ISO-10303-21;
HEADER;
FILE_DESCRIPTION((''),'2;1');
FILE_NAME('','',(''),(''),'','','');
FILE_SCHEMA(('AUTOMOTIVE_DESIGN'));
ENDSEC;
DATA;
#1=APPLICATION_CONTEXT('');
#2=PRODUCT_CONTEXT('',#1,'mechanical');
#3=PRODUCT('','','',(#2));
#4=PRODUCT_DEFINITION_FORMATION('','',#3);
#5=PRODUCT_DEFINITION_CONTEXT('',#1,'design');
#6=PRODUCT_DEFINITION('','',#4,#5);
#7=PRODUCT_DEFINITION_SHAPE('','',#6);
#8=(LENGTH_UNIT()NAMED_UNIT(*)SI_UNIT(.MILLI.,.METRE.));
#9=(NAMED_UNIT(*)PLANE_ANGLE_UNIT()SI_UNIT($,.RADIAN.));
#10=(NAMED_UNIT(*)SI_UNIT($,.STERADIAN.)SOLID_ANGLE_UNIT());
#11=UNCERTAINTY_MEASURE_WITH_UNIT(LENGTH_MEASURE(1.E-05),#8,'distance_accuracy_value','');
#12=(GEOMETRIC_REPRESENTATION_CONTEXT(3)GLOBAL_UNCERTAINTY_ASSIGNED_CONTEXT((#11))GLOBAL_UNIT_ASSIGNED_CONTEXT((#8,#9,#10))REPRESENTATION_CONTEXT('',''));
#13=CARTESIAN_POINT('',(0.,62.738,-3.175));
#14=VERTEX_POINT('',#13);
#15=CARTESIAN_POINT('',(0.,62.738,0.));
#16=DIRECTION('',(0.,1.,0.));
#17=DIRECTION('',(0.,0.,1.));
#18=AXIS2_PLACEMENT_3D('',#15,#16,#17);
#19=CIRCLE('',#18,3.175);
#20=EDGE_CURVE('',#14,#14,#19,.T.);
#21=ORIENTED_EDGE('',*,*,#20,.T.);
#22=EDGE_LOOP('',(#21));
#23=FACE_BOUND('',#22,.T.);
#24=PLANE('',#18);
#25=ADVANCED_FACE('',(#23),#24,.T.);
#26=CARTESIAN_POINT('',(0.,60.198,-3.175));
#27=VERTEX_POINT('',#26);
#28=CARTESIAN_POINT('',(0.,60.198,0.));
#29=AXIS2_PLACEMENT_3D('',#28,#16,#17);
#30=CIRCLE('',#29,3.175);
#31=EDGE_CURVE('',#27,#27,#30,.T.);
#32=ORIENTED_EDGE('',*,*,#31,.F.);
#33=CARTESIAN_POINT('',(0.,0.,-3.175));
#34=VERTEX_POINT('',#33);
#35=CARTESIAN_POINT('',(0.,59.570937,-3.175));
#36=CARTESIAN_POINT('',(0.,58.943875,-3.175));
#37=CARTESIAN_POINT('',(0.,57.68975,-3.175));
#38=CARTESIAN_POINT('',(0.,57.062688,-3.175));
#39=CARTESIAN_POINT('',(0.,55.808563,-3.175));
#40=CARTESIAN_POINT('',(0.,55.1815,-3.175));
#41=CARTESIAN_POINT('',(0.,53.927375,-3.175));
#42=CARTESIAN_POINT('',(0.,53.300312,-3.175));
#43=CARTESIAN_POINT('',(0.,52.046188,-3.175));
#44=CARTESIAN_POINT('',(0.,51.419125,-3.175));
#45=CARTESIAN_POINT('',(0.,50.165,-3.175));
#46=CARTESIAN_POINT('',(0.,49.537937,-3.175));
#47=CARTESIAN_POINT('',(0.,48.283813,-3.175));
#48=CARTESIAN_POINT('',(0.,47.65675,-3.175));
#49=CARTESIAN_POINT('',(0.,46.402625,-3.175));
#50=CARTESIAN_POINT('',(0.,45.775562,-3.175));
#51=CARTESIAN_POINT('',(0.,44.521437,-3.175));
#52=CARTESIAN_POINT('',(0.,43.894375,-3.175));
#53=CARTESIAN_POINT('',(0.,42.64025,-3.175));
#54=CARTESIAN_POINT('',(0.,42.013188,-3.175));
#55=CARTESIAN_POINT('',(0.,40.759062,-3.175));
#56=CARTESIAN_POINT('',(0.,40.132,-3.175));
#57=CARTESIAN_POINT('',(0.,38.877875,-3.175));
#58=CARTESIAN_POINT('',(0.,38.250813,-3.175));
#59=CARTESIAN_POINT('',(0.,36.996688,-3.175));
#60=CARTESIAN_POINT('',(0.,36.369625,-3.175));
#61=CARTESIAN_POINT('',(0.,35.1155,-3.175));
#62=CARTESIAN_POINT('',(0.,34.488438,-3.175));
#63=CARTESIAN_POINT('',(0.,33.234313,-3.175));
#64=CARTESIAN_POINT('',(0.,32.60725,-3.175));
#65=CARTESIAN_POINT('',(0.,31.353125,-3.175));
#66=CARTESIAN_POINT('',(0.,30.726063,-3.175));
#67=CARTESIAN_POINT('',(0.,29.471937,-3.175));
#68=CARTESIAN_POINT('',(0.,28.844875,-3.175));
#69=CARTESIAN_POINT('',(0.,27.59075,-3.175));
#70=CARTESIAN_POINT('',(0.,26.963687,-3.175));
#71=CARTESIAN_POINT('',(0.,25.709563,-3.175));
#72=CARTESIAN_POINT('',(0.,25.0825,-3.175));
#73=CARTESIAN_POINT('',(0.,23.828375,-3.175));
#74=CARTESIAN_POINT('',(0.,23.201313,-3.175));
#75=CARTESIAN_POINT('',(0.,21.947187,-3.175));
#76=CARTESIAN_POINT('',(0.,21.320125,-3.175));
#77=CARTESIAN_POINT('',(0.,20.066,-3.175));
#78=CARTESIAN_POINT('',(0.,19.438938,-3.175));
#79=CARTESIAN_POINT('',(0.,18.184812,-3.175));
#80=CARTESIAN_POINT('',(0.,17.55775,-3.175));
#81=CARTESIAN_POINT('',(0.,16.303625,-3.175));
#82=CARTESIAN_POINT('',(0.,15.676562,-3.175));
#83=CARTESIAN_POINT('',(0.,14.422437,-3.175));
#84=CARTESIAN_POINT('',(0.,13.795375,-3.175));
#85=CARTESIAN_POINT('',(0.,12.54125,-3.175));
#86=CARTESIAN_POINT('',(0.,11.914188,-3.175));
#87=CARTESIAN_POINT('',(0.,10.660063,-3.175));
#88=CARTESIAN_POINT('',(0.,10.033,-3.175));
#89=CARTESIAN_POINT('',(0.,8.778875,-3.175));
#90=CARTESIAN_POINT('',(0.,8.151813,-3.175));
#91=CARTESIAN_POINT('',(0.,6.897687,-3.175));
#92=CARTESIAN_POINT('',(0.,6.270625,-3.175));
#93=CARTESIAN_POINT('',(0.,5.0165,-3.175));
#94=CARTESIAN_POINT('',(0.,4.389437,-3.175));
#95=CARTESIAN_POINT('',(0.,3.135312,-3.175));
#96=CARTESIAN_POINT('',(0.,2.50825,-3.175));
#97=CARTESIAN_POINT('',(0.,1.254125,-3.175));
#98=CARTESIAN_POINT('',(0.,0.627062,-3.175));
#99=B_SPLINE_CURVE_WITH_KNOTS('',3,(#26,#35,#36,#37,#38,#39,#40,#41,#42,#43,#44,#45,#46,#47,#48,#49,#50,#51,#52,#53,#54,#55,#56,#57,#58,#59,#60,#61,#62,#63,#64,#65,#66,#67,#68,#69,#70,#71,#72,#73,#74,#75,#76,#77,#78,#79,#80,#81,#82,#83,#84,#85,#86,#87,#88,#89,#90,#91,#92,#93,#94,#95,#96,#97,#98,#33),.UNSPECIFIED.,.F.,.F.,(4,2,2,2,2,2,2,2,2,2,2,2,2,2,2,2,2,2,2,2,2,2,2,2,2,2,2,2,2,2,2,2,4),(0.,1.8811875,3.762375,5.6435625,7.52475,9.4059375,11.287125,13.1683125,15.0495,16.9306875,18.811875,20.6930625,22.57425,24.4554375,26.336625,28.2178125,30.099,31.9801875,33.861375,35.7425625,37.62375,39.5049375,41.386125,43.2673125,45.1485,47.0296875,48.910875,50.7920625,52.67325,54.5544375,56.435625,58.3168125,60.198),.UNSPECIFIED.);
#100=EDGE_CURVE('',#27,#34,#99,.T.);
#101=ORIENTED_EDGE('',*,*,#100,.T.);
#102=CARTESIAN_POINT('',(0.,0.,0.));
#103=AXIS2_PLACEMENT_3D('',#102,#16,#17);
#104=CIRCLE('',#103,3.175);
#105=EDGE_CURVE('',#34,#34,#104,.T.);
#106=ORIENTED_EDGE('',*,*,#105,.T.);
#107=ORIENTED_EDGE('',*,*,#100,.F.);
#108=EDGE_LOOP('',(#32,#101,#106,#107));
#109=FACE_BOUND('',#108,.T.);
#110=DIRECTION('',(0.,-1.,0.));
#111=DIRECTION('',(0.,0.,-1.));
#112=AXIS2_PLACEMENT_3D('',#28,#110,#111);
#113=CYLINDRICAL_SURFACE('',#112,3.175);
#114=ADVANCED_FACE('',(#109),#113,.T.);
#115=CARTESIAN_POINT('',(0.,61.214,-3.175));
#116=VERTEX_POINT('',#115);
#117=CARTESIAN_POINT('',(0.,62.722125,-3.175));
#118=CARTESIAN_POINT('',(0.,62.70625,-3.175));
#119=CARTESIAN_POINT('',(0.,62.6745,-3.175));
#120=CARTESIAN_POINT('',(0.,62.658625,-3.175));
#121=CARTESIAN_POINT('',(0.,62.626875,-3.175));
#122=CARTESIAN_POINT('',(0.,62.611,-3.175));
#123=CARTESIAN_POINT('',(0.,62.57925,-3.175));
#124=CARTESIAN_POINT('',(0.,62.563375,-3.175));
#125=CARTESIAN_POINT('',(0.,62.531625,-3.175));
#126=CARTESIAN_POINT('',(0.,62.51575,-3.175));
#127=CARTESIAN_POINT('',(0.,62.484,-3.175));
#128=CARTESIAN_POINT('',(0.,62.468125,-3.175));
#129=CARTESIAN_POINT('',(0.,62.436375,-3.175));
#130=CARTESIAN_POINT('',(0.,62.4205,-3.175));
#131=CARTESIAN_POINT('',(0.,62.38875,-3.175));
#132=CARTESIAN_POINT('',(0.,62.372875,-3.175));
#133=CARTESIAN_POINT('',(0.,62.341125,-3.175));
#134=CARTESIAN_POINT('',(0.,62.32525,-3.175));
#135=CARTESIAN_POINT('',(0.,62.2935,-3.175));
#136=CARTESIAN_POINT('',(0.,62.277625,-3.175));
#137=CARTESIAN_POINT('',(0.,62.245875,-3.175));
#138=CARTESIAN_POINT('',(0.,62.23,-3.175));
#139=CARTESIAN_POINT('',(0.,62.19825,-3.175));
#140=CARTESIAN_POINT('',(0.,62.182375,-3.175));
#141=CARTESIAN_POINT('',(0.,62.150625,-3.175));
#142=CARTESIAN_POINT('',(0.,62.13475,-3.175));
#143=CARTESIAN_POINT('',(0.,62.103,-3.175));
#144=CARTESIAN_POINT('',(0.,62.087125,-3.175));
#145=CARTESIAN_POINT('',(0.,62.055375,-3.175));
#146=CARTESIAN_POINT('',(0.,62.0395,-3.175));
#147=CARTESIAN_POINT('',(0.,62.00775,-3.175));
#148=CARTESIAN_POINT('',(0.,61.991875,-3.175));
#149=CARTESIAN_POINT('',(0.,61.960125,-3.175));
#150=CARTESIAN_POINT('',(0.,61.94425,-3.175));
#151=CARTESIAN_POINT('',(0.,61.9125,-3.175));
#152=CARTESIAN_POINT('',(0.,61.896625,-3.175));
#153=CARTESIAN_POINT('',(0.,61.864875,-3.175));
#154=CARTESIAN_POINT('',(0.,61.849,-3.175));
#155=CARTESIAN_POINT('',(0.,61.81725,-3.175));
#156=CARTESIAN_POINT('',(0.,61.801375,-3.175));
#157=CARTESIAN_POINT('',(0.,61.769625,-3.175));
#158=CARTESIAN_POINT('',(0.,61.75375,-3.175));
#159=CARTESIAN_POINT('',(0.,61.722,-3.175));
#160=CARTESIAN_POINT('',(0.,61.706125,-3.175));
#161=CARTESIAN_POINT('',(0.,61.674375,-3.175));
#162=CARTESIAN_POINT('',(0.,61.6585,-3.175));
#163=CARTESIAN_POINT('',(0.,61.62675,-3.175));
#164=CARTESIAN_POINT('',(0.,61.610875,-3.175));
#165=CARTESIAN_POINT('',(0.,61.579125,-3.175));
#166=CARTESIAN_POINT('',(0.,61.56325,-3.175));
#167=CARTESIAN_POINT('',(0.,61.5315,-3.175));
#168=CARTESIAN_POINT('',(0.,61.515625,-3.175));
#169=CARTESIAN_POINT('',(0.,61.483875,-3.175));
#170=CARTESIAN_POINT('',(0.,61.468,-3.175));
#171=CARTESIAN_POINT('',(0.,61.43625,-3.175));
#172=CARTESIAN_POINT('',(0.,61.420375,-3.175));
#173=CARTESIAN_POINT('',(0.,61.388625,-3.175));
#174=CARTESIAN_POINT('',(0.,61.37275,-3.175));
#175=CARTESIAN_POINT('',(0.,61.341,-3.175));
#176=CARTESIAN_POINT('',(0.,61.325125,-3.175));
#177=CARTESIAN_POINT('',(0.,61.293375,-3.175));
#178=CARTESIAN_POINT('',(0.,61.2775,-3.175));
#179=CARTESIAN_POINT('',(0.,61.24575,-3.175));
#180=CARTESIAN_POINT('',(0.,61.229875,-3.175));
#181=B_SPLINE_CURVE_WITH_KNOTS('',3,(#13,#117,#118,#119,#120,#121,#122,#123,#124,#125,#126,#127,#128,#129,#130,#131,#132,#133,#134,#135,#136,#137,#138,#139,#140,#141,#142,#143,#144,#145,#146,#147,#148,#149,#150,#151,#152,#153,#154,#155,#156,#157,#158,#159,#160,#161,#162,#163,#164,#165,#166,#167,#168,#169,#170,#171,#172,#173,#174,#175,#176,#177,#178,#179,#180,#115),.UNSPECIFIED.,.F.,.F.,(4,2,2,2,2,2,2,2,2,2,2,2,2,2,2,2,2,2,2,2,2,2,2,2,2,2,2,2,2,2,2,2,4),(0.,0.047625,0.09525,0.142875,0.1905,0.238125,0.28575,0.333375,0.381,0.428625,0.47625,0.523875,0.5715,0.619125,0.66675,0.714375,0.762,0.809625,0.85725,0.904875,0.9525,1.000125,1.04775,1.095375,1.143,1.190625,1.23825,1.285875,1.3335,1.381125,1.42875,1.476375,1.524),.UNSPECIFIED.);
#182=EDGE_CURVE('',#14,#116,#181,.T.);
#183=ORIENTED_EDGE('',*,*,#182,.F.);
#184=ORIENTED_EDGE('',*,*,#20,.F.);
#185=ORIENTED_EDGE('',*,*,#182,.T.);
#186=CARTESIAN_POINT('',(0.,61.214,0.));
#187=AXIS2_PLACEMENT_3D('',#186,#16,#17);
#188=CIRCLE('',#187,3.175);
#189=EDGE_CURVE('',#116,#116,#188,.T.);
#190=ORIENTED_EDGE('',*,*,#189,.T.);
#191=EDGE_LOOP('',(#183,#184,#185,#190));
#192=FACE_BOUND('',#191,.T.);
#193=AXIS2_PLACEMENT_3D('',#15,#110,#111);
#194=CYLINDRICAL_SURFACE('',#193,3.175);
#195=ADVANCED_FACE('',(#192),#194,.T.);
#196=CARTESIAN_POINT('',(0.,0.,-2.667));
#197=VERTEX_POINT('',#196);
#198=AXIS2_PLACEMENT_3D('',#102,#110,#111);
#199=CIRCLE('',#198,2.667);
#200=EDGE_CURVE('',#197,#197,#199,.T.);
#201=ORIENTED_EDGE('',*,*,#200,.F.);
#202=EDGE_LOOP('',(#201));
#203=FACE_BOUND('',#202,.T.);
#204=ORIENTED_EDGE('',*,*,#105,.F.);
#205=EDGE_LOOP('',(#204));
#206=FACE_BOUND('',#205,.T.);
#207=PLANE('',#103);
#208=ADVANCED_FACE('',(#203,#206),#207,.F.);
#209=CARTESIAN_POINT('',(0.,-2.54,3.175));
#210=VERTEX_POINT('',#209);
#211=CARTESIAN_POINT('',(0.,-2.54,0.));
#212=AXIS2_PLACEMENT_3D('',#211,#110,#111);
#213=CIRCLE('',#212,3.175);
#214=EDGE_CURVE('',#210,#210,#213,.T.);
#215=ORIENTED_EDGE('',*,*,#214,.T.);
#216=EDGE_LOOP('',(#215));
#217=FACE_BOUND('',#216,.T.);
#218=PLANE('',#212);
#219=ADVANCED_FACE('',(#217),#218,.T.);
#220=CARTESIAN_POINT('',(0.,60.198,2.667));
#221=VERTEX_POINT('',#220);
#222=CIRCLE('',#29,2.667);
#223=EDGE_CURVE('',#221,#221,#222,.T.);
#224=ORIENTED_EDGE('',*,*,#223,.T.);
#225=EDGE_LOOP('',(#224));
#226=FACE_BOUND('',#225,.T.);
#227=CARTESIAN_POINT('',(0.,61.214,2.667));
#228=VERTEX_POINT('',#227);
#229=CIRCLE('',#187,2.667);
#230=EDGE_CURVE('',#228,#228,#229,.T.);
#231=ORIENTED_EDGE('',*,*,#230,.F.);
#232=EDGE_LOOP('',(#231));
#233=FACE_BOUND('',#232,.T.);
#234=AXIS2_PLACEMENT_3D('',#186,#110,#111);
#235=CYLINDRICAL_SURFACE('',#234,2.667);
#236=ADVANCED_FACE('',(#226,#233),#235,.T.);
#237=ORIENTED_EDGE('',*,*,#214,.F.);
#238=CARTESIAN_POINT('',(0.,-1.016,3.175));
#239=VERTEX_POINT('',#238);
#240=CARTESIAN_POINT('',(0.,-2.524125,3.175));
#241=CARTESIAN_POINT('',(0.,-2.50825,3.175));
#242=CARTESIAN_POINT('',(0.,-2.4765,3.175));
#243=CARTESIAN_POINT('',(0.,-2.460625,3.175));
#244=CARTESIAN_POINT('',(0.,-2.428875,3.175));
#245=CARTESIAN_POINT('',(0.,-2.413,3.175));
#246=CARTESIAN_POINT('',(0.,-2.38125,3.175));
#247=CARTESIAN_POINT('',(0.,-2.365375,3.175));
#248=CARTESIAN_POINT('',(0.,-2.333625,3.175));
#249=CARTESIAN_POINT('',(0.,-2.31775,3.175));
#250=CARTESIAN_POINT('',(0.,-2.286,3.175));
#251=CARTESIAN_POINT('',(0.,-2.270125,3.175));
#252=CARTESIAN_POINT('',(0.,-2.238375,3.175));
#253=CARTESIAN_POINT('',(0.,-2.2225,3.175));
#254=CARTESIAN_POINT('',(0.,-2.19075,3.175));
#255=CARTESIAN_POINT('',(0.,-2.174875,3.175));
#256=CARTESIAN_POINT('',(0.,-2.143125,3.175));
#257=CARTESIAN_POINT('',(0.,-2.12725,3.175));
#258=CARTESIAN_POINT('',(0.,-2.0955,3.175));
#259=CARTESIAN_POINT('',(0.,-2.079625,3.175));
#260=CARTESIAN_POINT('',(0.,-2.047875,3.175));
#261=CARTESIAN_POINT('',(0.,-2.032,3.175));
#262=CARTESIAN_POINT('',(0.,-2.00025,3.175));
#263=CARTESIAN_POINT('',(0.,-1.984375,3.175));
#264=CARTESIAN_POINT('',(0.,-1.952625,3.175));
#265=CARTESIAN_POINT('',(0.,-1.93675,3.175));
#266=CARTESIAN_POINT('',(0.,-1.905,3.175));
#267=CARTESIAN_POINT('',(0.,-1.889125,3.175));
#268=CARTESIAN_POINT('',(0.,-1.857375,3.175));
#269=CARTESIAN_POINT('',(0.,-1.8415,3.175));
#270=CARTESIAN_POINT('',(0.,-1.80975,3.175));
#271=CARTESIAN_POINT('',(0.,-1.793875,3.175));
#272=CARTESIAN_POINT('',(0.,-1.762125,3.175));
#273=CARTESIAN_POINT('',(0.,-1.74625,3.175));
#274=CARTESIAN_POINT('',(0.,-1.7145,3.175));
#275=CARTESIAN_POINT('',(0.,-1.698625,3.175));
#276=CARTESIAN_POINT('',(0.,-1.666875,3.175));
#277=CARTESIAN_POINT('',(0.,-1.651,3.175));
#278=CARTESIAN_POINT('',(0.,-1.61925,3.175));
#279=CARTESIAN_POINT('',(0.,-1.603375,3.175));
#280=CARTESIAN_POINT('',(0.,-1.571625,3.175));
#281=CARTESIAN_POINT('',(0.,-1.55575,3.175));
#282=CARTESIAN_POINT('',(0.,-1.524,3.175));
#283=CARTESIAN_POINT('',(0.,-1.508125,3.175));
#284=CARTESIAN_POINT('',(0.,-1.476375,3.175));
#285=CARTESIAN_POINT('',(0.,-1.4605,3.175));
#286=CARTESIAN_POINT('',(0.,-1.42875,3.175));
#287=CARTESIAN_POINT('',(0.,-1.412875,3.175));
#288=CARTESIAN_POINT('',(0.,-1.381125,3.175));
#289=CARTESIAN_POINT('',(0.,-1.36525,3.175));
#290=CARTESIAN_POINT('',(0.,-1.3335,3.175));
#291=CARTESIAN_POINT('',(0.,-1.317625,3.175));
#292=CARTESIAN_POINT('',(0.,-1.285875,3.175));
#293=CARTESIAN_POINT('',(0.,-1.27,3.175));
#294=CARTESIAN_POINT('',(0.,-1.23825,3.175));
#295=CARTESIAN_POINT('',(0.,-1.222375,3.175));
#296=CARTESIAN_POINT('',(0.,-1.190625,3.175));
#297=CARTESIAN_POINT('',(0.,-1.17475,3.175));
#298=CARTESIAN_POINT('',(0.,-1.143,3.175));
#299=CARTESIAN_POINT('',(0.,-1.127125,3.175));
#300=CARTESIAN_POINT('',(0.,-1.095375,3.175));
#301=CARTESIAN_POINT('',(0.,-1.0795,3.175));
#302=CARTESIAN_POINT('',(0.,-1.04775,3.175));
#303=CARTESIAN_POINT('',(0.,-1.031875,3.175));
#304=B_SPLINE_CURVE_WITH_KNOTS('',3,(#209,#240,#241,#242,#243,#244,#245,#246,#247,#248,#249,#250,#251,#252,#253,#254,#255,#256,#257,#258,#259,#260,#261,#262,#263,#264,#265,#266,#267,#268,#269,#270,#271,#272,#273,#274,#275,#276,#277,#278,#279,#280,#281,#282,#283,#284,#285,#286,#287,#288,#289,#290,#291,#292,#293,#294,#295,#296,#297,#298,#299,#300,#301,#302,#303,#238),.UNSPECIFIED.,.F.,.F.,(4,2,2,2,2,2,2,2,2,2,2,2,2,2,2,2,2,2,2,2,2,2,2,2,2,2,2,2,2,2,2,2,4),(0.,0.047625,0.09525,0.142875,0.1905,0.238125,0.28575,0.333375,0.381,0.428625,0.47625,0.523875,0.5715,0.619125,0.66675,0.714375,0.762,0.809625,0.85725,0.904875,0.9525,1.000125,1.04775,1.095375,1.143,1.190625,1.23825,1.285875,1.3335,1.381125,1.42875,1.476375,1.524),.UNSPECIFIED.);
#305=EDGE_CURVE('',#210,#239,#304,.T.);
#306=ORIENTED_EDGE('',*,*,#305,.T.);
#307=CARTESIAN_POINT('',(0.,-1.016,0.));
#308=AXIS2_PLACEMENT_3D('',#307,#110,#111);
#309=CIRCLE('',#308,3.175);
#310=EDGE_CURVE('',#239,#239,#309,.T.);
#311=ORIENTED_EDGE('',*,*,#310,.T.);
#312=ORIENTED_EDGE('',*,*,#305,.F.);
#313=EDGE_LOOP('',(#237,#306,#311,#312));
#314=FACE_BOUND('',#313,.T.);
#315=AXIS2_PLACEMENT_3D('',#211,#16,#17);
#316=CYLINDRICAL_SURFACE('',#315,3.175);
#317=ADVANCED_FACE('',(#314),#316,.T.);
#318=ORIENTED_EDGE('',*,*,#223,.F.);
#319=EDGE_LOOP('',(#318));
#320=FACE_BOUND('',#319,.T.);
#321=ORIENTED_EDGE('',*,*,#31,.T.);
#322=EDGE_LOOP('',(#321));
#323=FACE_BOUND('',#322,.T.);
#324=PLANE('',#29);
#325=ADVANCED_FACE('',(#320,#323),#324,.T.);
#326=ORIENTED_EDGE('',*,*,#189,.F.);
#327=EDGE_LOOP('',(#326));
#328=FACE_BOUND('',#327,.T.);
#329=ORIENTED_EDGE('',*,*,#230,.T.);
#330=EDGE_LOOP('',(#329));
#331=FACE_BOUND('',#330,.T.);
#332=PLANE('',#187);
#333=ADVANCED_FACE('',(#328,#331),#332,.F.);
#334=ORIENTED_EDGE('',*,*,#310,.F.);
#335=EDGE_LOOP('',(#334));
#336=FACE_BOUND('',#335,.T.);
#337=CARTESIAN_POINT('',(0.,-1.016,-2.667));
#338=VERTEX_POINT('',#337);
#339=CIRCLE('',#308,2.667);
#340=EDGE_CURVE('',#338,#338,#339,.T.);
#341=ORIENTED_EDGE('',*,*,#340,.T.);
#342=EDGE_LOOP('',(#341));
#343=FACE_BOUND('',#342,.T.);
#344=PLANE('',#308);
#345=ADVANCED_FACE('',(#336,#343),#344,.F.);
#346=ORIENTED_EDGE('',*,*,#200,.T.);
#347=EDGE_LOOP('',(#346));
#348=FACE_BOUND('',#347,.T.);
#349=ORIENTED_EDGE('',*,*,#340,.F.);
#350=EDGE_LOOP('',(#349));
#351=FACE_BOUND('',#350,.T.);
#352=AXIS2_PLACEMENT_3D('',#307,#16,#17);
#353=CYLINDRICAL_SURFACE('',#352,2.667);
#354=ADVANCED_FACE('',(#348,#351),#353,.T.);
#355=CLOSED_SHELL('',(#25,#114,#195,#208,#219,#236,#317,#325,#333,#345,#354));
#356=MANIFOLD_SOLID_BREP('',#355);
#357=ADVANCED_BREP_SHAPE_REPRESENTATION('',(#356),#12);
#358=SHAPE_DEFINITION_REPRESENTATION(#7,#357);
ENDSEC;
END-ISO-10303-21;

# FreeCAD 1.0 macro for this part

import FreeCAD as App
import Part
import Sketcher
from FreeCAD import Vector
Q = App.Units.Quantity

doc = App.newDocument("Part")
body = doc.addObject("PartDesign::Body", "Body")

# Sketch on XZ plane
sketch1 = body.newObject("Sketcher::SketchObject", "Sketch")
sketch1.AttachmentSupport = (doc.getObject("XZ_Plane"), [""])
sketch1.MapMode = "FlatFace"
sketch1.addGeometry(Part.Circle(Vector(0, 0, 0), Vector(0, 0, 1), 3.2), False)
sketch1.addConstraint(Sketcher.Constraint("Coincident", 0, 3, -1, 1))
sketch1.addConstraint(Sketcher.Constraint("Diameter", 0, Q("0.25 in")))
pad1 = body.newObject("PartDesign::Pad", "Pad")
pad1.Profile = sketch1
pad1.Length = Q("2.37 in")
pad1.Reversed = True

# Sketch on XZ plane
sketch2 = body.newObject("Sketcher::SketchObject", "Sketch001")
sketch2.AttachmentSupport = (doc.getObject("XZ_Plane"), [""])
sketch2.MapMode = "FlatFace"
sketch2.AttachmentOffset = App.Placement(Vector(0, 0, -2.37 * 25.4), App.Rotation())
sketch2.addGeometry(Part.Circle(Vector(0, 0, 0), Vector(0, 0, 1), 2.7), False)
sketch2.addConstraint(Sketcher.Constraint("Coincident", 0, 3, -1, 1))
sketch2.addConstraint(Sketcher.Constraint("Diameter", 0, Q("0.21 in")))
pad2 = body.newObject("PartDesign::Pad", "Pad001")
pad2.Profile = sketch2
pad2.Length = Q("0.04 in")
pad2.Reversed = True

# Sketch on XZ plane
sketch3 = body.newObject("Sketcher::SketchObject", "Sketch002")
sketch3.AttachmentSupport = (doc.getObject("XZ_Plane"), [""])
sketch3.MapMode = "FlatFace"
sketch3.AttachmentOffset = App.Placement(Vector(0, 0, -2.41 * 25.4), App.Rotation())
sketch3.addGeometry(Part.Circle(Vector(0, 0, 0), Vector(0, 0, 1), 3.2), False)
sketch3.addConstraint(Sketcher.Constraint("Coincident", 0, 3, -1, 1))
sketch3.addConstraint(Sketcher.Constraint("Diameter", 0, Q("0.25 in")))
pad3 = body.newObject("PartDesign::Pad", "Pad002")
pad3.Profile = sketch3
pad3.Length = Q("0.06 in")
pad3.Reversed = True

# Sketch on XZ plane
sketch4 = body.newObject("Sketcher::SketchObject", "Sketch003")
sketch4.AttachmentSupport = (doc.getObject("XZ_Plane"), [""])
sketch4.MapMode = "FlatFace"
sketch4.AttachmentOffset = App.Placement(Vector(0, 0, 0.04 * 25.4), App.Rotation())
sketch4.addGeometry(Part.Circle(Vector(0, 0, 0), Vector(0, 0, 1), 2.7), False)
sketch4.addConstraint(Sketcher.Constraint("Coincident", 0, 3, -1, 1))
sketch4.addConstraint(Sketcher.Constraint("Diameter", 0, Q("0.21 in")))
pad4 = body.newObject("PartDesign::Pad", "Pad003")
pad4.Profile = sketch4
pad4.Length = Q("0.04 in")
pad4.Reversed = True

# Sketch on XZ plane
sketch5 = body.newObject("Sketcher::SketchObject", "Sketch004")
sketch5.AttachmentSupport = (doc.getObject("XZ_Plane"), [""])
sketch5.MapMode = "FlatFace"
sketch5.AttachmentOffset = App.Placement(Vector(0, 0, 0.1 * 25.4), App.Rotation())
sketch5.addGeometry(Part.Circle(Vector(0, 0, 0), Vector(0, 0, 1), 3.2), False)
sketch5.addConstraint(Sketcher.Constraint("Coincident", 0, 3, -1, 1))
sketch5.addConstraint(Sketcher.Constraint("Diameter", 0, Q("0.25 in")))
pad5 = body.newObject("PartDesign::Pad", "Pad004")
pad5.Profile = sketch5
pad5.Length = Q("0.06 in")
pad5.Reversed = True

doc.recompute()
